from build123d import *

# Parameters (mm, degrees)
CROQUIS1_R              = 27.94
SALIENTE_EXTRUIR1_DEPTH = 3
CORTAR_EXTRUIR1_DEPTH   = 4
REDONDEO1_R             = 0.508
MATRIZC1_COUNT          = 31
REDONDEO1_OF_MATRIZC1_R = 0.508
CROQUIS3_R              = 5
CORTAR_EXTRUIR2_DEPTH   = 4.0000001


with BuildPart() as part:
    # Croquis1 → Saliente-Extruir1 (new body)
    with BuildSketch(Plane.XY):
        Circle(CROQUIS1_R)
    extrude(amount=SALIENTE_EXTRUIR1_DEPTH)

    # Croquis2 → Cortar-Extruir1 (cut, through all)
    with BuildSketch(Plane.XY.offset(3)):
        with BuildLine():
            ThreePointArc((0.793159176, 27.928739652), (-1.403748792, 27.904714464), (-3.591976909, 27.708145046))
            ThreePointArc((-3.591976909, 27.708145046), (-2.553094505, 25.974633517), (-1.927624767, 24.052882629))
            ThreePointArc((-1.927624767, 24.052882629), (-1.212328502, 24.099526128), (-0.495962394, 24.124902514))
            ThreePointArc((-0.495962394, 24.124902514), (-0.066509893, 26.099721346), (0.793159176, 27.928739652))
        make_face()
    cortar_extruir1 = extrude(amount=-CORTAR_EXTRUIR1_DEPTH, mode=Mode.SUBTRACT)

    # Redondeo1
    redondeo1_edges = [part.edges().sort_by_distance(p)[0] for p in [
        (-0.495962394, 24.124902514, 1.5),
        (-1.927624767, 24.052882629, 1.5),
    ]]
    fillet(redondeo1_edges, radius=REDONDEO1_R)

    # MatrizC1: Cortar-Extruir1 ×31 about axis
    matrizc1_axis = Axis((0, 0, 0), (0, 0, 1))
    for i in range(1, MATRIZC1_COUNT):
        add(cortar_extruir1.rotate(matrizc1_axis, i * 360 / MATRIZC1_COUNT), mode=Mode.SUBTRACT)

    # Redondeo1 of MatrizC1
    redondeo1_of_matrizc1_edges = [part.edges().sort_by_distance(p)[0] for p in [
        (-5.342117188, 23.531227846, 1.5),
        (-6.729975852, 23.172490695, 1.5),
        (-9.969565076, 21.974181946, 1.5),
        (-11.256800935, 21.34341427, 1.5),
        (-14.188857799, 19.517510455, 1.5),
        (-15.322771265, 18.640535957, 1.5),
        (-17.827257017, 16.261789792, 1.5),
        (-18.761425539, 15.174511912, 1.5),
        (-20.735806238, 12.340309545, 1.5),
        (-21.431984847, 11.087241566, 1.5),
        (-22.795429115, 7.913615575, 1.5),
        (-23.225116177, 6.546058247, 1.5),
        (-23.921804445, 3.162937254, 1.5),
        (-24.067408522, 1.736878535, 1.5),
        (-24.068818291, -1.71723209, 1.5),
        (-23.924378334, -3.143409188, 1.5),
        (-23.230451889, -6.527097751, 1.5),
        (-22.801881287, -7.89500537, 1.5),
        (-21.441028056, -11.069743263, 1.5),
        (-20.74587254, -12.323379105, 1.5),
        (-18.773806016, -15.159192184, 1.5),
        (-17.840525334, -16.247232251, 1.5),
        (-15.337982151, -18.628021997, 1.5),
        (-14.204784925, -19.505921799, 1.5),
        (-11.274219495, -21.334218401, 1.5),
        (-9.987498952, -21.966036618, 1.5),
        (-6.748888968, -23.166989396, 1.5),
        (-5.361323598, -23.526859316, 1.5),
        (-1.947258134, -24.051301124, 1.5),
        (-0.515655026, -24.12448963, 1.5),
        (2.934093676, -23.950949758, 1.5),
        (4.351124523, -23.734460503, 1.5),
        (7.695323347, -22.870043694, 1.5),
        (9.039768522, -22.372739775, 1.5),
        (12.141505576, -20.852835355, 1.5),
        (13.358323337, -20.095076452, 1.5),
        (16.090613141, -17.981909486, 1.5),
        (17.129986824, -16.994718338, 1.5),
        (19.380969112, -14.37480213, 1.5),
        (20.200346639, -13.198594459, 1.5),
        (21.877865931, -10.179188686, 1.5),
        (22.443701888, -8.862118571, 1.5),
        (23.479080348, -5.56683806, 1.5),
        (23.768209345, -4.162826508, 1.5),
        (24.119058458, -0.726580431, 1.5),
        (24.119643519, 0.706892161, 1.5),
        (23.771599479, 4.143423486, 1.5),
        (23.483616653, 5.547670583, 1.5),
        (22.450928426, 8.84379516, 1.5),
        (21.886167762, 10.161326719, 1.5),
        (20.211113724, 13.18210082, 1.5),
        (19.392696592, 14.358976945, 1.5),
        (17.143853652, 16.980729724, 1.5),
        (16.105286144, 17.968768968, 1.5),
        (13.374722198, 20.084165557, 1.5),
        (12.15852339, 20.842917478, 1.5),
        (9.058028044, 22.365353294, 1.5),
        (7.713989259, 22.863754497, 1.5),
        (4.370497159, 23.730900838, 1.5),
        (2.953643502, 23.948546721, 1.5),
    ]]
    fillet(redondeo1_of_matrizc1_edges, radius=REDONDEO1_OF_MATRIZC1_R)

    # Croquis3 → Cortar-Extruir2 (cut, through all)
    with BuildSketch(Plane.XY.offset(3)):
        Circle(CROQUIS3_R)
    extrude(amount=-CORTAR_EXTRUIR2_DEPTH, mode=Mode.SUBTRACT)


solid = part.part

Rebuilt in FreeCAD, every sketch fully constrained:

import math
import FreeCAD as App
import Part
import Sketcher
from FreeCAD import Vector
Q = App.Units.Quantity


def edges_at(feature, points):
    """Names of the edges that pass closest to the given points."""
    edges = feature.Shape.Edges
    near = lambda p: min(range(len(edges)), key=lambda i: edges[i].distToShape(Part.Vertex(*p))[0])
    return sorted({f"Edge{near(p) + 1}" for p in points})

doc = App.newDocument("Part")
params = doc.addObject("Spreadsheet::Sheet", "Params")
for row, (alias, value) in enumerate([
    ("sketch1_diameter", "55.88 mm"),
    ("pad1_length", "3 mm"),
    ("sketch2_radius", "27.94 mm"),
    ("sketch2_radius2", "24.130001 mm"),
    ("fillet_radius", "0.508 mm"),
    ("fillet2_radius", "0.508 mm"),
    ("sketch3_diameter", "10 mm"),
], start=1):
    params.set(f"A{row}", alias)
    params.set(f"B{row}", "=" + value)
    params.setAlias(f"B{row}", alias)

body = doc.addObject("PartDesign::Body", "Body")

sketch1 = doc.addObject("Sketcher::SketchObject", "Sketch")
body.addObject(sketch1)
sketch1.AttachmentSupport = (doc.XY_Plane, [""])
sketch1.MapMode = "FlatFace"
sketch1.addGeometry(Part.Circle(Vector(0, 0, 0), Vector(0, 0, 1), 27.94), False)
sketch1.addConstraint(Sketcher.Constraint("Coincident", 0, 3, -1, 1))
sketch1.addConstraint(Sketcher.Constraint("Diameter", 0, Q("55.88 mm")))
sketch1.setExpression("Constraints[1]", "Params.sketch1_diameter")
pad1 = doc.addObject("PartDesign::Pad", "Pad")
body.addObject(pad1)
pad1.Profile = sketch1
pad1.setExpression("Length", "Params.pad1_length")

sketch2 = doc.addObject("Sketcher::SketchObject", "Sketch001")
body.addObject(sketch2)
sketch2.AttachmentSupport = (doc.XY_Plane, [""])
sketch2.MapMode = "FlatFace"
sketch2.AttachmentOffset = App.Placement(Vector(0, 0, 3), App.Rotation())
sketch2.addGeometry(Part.ArcOfCircle(Part.Circle(Vector(0, 0, 0), Vector(0, 0, 1), 27.94), math.radians(88.373272), math.radians(97.38641)), False)
sketch2.addGeometry(Part.ArcOfCircle(Part.Circle(Vector(-10.736113, 22.248656, 0), Vector(0, 0, 1), 8.991368), math.radians(11.575676), math.radians(37.386759)), False)
sketch2.addGeometry(Part.ArcOfCircle(Part.Circle(Vector(0, -0.000001, 0), Vector(0, 0, 1), 24.130001), math.radians(91.177727), math.radians(94.581955)), False)
sketch2.addGeometry(Part.ArcOfCircle(Part.Circle(Vector(8.449122, 23.213771, 0), Vector(0, 0, 1), 8.991368), math.radians(148.372923), math.radians(174.184006)), False)
sketch2.addConstraint(Sketcher.Constraint("Coincident", 0, 2, 1, 2))
sketch2.addConstraint(Sketcher.Constraint("Coincident", 1, 1, 2, 2))
sketch2.addConstraint(Sketcher.Constraint("Coincident", 2, 1, 3, 2))
sketch2.addConstraint(Sketcher.Constraint("Coincident", 3, 1, 0, 1))
sketch2.addConstraint(Sketcher.Constraint("Coincident", 0, 3, -1, 1))
sketch2.addConstraint(Sketcher.Constraint("Coincident", 2, 3, -1, 1))
sketch2.addConstraint(Sketcher.Constraint("Equal", 1, 3))
sketch2.addConstraint(Sketcher.Constraint("Radius", 0, Q("27.94 mm")))
sketch2.addConstraint(Sketcher.Constraint("Radius", 2, Q("24.130001 mm")))
sketch2.addConstraint(Sketcher.Constraint("Radius", 1, Q("8.991368 mm")))
sketch2.addConstraint(Sketcher.Constraint("DistanceX", 0, 2, 3, 3, Q("12.041099 mm")))
sketch2.addConstraint(Sketcher.Constraint("DistanceX", -1, 1, 3, 3, Q("8.449122 mm")))
sketch2.addConstraint(Sketcher.Constraint("DistanceY", -1, 1, 3, 3, Q("23.213771 mm")))
sketch2.addConstraint(Sketcher.Constraint("DistanceY", 1, 3, 0, 2, Q("5.459489 mm")))
sketch2.setExpression("Constraints[7]", "Params.sketch2_radius")
sketch2.setExpression("Constraints[8]", "Params.sketch2_radius2")
pocket1 = doc.addObject("PartDesign::Pocket", "Pocket")
body.addObject(pocket1)
pocket1.Profile = sketch2
pocket1.Type = "ThroughAll"
doc.recompute()

fillet = doc.addObject("PartDesign::Fillet", "Fillet")
body.addObject(fillet)
fillet.Base = (pocket1, edges_at(pocket1, [(-0.496, 24.125, 1.5), (-1.928, 24.053, 1.5)]))
fillet.setExpression("Radius", "Params.fillet_radius")
doc.recompute()

polarpattern = doc.addObject("PartDesign::PolarPattern", "PolarPattern")
body.addObject(polarpattern)
polarpattern.Originals = [pocket1]
polarpattern.Axis = (doc.Z_Axis, [""])
polarpattern.Angle = 360
polarpattern.Occurrences = 31
body.Tip = polarpattern
doc.recompute()

fillet2 = doc.addObject("PartDesign::Fillet", "Fillet001")
body.addObject(fillet2)
fillet2.Base = (polarpattern, edges_at(polarpattern, [
    (-5.342, 23.531, 1.5),
    (-6.73, 23.172, 1.5),
    (-9.97, 21.974, 1.5),
    (-11.257, 21.343, 1.5),
    (-14.189, 19.518, 1.5),
    (-15.323, 18.641, 1.5),
    (-17.827, 16.262, 1.5),
    (-18.761, 15.175, 1.5),
    (-20.736, 12.34, 1.5),
    (-21.432, 11.087, 1.5),
    (-22.795, 7.914, 1.5),
    (-23.225, 6.546, 1.5),
    (-23.922, 3.163, 1.5),
    (-24.067, 1.737, 1.5),
    (-24.069, -1.717, 1.5),
    (-23.924, -3.143, 1.5),
    (-23.23, -6.527, 1.5),
    (-22.802, -7.895, 1.5),
    (-21.441, -11.07, 1.5),
    (-20.746, -12.323, 1.5),
    (-18.774, -15.159, 1.5),
    (-17.841, -16.247, 1.5),
    (-15.338, -18.628, 1.5),
    (-14.205, -19.506, 1.5),
    (-11.274, -21.334, 1.5),
    (-9.987, -21.966, 1.5),
    (-6.749, -23.167, 1.5),
    (-5.361, -23.527, 1.5),
    (-1.947, -24.051, 1.5),
    (-0.516, -24.124, 1.5),
    (2.934, -23.951, 1.5),
    (4.351, -23.734, 1.5),
    (7.695, -22.87, 1.5),
    (9.04, -22.373, 1.5),
    (12.142, -20.853, 1.5),
    (13.358, -20.095, 1.5),
    (16.091, -17.982, 1.5),
    (17.13, -16.995, 1.5),
    (19.381, -14.375, 1.5),
    (20.2, -13.199, 1.5),
    (21.878, -10.179, 1.5),
    (22.444, -8.862, 1.5),
    (23.479, -5.567, 1.5),
    (23.768, -4.163, 1.5),
    (24.119, -0.727, 1.5),
    (24.12, 0.707, 1.5),
    (23.772, 4.143, 1.5),
    (23.484, 5.548, 1.5),
    (22.451, 8.844, 1.5),
    (21.886, 10.161, 1.5),
    (20.211, 13.182, 1.5),
    (19.393, 14.359, 1.5),
    (17.144, 16.981, 1.5),
    (16.105, 17.969, 1.5),
    (13.375, 20.084, 1.5),
    (12.159, 20.843, 1.5),
    (9.058, 22.365, 1.5),
    (7.714, 22.864, 1.5),
    (4.37, 23.731, 1.5),
    (2.954, 23.949, 1.5),
]))
fillet2.setExpression("Radius", "Params.fillet2_radius")

sketch3 = doc.addObject("Sketcher::SketchObject", "Sketch002")
body.addObject(sketch3)
sketch3.AttachmentSupport = (doc.XY_Plane, [""])
sketch3.MapMode = "FlatFace"
sketch3.AttachmentOffset = App.Placement(Vector(0, 0, 3), App.Rotation())
sketch3.addGeometry(Part.Circle(Vector(0, 0, 0), Vector(0, 0, 1), 5), False)
sketch3.addConstraint(Sketcher.Constraint("Coincident", 0, 3, -1, 1))
sketch3.addConstraint(Sketcher.Constraint("Diameter", 0, Q("10 mm")))
sketch3.setExpression("Constraints[1]", "Params.sketch3_diameter")
pocket2 = doc.addObject("PartDesign::Pocket", "Pocket001")
body.addObject(pocket2)
pocket2.Profile = sketch3
pocket2.Type = "ThroughAll"

doc.recompute()
